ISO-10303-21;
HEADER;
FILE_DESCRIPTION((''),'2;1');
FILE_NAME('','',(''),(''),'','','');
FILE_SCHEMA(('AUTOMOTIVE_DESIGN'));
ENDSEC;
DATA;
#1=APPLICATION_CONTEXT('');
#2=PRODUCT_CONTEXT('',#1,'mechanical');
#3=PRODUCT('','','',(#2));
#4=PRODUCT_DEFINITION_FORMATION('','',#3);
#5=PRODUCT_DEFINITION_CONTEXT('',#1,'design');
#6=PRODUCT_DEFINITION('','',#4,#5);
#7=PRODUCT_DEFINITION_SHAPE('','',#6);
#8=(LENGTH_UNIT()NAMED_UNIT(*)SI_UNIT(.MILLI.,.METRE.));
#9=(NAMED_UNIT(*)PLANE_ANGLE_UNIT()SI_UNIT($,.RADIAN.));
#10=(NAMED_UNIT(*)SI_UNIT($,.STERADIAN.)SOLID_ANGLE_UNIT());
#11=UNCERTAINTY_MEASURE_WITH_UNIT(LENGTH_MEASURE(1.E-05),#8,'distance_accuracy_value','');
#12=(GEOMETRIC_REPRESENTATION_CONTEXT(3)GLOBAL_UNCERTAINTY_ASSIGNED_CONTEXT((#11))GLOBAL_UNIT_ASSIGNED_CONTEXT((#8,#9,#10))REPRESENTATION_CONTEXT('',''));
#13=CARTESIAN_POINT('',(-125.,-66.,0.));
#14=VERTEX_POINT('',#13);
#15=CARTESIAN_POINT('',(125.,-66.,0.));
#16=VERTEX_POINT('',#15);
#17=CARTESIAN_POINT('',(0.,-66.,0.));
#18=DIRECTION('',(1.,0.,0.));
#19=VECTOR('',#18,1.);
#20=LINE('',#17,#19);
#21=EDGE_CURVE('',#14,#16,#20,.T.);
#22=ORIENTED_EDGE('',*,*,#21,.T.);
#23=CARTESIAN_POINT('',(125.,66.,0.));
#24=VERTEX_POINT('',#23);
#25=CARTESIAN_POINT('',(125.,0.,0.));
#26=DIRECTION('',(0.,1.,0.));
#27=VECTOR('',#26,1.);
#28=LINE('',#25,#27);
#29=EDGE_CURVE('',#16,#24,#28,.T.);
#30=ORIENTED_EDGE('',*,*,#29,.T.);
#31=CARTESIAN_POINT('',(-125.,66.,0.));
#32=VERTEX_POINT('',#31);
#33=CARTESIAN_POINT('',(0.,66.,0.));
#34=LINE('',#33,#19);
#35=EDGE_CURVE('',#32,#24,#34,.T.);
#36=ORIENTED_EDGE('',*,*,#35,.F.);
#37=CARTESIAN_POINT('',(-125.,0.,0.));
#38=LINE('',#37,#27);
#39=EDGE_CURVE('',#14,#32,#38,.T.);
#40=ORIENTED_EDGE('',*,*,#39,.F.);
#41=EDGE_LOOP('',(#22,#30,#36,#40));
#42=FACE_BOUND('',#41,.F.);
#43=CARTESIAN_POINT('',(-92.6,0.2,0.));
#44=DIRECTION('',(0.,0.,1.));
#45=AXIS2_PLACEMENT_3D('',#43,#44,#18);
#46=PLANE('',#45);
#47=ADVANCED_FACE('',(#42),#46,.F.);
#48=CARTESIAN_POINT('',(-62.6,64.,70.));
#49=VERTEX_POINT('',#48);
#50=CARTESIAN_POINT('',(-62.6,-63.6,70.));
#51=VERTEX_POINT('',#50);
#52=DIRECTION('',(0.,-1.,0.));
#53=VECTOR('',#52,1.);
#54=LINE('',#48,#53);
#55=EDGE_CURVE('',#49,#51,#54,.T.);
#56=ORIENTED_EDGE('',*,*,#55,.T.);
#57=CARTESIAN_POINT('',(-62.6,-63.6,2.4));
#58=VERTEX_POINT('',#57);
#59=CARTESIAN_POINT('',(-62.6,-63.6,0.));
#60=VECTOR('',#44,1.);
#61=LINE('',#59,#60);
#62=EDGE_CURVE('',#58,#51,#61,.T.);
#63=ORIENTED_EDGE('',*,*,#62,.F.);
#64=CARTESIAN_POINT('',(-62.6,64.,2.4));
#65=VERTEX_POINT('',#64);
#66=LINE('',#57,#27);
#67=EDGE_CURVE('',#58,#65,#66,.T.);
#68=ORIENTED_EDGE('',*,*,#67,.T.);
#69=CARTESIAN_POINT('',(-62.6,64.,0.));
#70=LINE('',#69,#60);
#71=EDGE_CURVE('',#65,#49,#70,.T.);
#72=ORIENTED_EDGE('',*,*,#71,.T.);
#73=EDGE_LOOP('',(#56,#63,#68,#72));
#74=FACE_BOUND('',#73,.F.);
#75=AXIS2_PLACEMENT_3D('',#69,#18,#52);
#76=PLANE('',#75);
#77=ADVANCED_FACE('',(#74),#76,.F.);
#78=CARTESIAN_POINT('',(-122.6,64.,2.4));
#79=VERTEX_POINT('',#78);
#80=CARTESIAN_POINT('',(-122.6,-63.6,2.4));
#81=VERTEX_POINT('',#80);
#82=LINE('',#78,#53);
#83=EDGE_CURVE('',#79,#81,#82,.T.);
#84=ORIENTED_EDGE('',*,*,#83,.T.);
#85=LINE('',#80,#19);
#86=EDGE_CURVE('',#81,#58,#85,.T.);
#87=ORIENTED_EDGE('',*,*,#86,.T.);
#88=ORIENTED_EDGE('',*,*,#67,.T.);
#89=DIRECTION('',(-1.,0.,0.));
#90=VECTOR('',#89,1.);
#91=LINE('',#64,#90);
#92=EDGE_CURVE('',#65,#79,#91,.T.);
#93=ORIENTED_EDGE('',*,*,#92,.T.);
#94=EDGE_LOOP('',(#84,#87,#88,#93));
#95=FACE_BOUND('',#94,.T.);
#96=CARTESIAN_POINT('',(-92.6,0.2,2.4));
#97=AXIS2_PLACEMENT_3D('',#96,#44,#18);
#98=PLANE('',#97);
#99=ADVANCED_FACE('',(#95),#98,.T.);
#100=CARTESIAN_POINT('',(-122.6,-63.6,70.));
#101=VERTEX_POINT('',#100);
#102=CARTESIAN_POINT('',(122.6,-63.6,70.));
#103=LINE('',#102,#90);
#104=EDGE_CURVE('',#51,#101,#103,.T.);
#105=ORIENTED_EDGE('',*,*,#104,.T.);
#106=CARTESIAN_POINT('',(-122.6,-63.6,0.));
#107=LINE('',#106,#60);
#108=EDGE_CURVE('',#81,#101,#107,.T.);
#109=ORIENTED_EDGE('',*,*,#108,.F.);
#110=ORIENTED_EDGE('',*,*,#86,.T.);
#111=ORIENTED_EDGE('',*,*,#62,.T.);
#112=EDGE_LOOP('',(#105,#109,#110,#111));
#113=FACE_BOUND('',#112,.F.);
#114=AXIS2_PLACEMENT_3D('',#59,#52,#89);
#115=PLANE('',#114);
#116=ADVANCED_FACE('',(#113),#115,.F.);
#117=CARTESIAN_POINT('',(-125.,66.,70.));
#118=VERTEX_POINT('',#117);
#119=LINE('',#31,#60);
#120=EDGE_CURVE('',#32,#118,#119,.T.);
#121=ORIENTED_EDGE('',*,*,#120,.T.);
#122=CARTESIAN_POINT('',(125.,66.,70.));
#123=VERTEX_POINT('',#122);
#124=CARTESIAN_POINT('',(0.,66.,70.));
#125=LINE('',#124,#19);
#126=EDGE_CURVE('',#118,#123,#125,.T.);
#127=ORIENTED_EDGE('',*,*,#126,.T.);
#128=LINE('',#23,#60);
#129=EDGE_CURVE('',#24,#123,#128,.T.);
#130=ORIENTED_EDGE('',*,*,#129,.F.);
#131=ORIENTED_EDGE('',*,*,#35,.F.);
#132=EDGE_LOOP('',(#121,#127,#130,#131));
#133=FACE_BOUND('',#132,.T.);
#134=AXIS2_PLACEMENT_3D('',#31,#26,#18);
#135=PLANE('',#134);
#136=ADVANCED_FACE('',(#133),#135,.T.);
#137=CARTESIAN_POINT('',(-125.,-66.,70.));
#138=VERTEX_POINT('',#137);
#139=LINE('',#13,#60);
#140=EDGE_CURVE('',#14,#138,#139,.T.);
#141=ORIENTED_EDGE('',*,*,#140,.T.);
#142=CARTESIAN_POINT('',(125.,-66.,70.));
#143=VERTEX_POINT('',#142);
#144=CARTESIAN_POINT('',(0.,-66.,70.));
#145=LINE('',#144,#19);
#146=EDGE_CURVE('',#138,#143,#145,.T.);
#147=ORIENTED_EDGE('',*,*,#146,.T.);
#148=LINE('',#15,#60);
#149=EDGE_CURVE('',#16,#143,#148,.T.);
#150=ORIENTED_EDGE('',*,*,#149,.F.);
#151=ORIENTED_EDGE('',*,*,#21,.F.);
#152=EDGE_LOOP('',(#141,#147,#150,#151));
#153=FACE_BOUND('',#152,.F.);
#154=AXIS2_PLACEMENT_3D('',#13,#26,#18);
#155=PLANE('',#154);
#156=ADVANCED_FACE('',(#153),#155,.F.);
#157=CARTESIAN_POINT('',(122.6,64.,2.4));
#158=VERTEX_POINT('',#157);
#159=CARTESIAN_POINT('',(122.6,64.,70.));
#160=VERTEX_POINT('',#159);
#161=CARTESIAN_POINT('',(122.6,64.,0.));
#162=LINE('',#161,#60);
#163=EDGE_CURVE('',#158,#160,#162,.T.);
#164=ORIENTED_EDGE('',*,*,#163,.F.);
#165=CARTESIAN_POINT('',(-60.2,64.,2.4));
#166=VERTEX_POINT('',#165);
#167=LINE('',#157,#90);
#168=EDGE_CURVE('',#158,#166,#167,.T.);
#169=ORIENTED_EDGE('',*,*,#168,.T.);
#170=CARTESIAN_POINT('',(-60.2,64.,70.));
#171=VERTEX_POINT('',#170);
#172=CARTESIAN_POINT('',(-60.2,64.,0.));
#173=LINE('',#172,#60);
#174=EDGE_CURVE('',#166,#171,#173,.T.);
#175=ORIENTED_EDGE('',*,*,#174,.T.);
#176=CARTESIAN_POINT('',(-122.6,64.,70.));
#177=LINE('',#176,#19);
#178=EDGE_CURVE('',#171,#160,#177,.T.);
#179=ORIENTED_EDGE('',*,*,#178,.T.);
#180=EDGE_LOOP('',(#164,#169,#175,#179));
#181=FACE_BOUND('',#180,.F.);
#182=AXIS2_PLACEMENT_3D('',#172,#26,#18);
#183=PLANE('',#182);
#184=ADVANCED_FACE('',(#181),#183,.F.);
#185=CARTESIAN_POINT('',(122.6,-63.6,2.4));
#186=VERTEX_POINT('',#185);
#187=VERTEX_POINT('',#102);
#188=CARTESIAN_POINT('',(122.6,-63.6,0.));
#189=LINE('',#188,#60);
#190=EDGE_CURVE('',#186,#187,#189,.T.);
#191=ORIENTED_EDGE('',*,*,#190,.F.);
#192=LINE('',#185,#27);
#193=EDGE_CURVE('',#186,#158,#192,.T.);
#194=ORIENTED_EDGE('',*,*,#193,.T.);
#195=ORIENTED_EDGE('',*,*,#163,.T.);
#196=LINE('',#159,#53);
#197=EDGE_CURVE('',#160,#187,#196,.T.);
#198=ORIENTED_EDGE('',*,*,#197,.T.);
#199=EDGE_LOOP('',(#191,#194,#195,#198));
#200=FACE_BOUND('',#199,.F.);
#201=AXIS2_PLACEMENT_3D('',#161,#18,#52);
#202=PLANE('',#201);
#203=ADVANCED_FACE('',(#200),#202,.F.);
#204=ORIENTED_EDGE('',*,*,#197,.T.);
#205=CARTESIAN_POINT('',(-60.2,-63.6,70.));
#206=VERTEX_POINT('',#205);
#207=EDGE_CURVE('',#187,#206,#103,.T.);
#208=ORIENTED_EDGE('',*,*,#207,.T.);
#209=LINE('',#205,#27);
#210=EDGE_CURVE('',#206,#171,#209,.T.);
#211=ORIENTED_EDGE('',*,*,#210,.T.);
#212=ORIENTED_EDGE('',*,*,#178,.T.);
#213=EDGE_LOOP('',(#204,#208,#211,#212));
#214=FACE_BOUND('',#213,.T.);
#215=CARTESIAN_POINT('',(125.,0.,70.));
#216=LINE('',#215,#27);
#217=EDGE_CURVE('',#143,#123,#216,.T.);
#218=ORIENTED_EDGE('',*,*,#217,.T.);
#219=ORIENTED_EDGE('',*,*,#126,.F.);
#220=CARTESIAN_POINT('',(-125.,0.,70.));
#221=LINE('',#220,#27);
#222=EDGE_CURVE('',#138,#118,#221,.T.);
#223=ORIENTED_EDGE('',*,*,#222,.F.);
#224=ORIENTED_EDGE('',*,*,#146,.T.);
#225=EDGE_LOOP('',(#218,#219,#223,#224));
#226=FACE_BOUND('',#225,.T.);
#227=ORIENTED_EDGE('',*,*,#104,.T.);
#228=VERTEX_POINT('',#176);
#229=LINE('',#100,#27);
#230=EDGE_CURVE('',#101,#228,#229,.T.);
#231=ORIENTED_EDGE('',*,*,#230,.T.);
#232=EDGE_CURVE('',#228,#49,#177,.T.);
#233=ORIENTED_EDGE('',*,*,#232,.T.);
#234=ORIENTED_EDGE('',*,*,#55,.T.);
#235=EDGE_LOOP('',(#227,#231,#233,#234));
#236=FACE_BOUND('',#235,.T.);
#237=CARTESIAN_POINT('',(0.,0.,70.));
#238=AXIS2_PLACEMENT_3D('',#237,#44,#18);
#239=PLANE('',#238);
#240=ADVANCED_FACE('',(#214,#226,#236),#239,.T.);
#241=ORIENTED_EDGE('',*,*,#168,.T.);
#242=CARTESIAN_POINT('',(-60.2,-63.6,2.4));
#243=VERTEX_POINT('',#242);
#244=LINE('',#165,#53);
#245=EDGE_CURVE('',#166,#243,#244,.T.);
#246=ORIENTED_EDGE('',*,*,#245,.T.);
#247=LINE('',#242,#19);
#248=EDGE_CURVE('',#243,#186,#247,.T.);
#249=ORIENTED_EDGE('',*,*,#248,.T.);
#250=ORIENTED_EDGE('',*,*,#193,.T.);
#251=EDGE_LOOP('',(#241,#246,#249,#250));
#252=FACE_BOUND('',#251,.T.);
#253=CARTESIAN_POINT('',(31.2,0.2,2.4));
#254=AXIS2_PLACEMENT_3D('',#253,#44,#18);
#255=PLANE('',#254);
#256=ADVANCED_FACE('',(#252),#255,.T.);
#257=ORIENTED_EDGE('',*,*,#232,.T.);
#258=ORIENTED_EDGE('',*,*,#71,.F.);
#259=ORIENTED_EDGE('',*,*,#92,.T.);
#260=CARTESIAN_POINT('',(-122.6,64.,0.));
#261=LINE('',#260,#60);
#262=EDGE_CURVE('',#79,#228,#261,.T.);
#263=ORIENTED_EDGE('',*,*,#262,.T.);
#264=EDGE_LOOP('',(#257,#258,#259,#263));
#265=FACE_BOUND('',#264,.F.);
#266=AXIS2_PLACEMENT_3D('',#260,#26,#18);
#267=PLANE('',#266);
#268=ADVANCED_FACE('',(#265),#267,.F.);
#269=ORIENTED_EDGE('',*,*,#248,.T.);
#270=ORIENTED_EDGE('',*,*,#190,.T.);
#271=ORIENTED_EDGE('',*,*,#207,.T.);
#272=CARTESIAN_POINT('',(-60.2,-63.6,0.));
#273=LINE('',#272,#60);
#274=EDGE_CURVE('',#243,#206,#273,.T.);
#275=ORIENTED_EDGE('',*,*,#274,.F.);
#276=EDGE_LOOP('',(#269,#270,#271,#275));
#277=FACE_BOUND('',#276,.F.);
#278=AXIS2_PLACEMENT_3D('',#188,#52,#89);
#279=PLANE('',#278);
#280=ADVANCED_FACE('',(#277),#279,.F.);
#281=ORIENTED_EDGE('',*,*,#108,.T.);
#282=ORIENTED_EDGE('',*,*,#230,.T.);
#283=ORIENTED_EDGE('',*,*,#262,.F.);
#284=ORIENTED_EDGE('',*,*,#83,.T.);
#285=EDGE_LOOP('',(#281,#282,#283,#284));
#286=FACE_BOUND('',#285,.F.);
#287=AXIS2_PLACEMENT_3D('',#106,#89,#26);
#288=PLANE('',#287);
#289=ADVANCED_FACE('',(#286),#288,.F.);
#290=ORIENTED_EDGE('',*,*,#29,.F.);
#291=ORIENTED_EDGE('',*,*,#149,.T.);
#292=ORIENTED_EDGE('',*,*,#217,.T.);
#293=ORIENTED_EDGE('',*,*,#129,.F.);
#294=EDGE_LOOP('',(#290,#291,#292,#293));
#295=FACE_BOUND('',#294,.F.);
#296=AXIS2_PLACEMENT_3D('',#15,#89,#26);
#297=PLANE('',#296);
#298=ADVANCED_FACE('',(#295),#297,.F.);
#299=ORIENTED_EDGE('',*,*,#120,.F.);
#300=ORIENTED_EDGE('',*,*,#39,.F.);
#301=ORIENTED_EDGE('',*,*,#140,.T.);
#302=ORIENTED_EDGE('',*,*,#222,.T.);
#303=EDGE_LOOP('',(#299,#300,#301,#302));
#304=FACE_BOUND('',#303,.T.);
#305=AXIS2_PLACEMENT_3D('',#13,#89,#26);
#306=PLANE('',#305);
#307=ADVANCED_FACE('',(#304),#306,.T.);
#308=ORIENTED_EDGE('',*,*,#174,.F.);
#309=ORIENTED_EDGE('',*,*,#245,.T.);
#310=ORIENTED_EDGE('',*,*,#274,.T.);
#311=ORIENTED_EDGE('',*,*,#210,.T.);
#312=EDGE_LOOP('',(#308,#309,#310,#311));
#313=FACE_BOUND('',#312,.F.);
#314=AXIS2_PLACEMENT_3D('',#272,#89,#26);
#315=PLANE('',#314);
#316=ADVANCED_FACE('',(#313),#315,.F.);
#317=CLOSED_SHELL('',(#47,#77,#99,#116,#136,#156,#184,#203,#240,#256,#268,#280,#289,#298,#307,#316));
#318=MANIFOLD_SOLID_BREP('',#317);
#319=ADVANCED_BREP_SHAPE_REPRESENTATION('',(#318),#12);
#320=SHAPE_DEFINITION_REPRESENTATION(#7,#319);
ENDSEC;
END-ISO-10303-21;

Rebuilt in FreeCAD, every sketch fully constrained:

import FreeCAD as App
import Part
import Sketcher

V = App.Vector
Q = App.Units.Quantity


def add_polygon(sketch, points):
    """Adds a closed chain of lines whose ends are joined by coincident constraints."""
    first, n = sketch.GeometryCount, len(points)
    for a, b in zip(points, points[1:] + points[:1]):
        sketch.addGeometry(Part.LineSegment(App.Vector(*a, 0), App.Vector(*b, 0)), False)
    for i in range(n):
        sketch.addConstraint(Sketcher.Constraint("Coincident", first + i, 2, first + (i + 1) % n, 1))

doc = App.newDocument("Part")
body = doc.addObject("PartDesign::Body", "Body")

sketch1 = body.newObject("Sketcher::SketchObject", "Sketch")
sketch1.AttachmentSupport = (doc.getObject("XY_Plane"), [""])
sketch1.MapMode = "FlatFace"
add_polygon(sketch1, [(-125, 66), (-125, -66), (125, -66), (125, 66)])
add_polygon(sketch1, [(122.6, -63.6), (-60.2, -63.6), (-60.2, 64), (122.6, 64)])
add_polygon(sketch1, [(-62.6, -63.6), (-122.6, -63.6), (-122.6, 64), (-62.6, 64)])
sketch1.addConstraint(Sketcher.Constraint("Vertical", 0))
sketch1.addConstraint(Sketcher.Constraint("Horizontal", 1))
sketch1.addConstraint(Sketcher.Constraint("Vertical", 2))
sketch1.addConstraint(Sketcher.Constraint("Horizontal", 3))
sketch1.addConstraint(Sketcher.Constraint("Horizontal", 4))
sketch1.addConstraint(Sketcher.Constraint("Vertical", 5))
sketch1.addConstraint(Sketcher.Constraint("Horizontal", 6))
sketch1.addConstraint(Sketcher.Constraint("Vertical", 7))
sketch1.addConstraint(Sketcher.Constraint("Horizontal", 8))
sketch1.addConstraint(Sketcher.Constraint("Vertical", 9))
sketch1.addConstraint(Sketcher.Constraint("Horizontal", 10))
sketch1.addConstraint(Sketcher.Constraint("Vertical", 11))
sketch1.addConstraint(Sketcher.Constraint("Symmetric", 0, 2, 2, 2, -1, 1))
sketch1.addConstraint(Sketcher.Constraint("Symmetric", 7, 2, 8, 2, -2))
sketch1.addConstraint(Sketcher.Constraint("Horizontal", 6, 2, 9, 2))
sketch1.addConstraint(Sketcher.Constraint("DistanceX", 1, 1, 1, 2, Q("250 mm")))
sketch1.addConstraint(Sketcher.Constraint("DistanceX", 8, 2, 8, 1, Q("60 mm")))
sketch1.addConstraint(Sketcher.Constraint("DistanceY", 0, 2, 0, 1, Q("132 mm")))
sketch1.addConstraint(Sketcher.Constraint("DistanceX", 4, 2, 4, 1, Q("182.8 mm")))
sketch1.addConstraint(Sketcher.Constraint("DistanceY", 5, 1, 5, 2, Q("127.6 mm")))
sketch1.addConstraint(Sketcher.Constraint("DistanceY", -1, 1, 5, 2, Q("64 mm")))
sketch1.addConstraint(Sketcher.Constraint("DistanceX", 4, 2, -1, 1, Q("60.2 mm")))
pad1 = body.newObject("PartDesign::Pad", "Pad")
pad1.Profile = sketch1
pad1.Length = 70

sketch2 = body.newObject("Sketcher::SketchObject", "Sketch001")
sketch2.AttachmentSupport = (doc.getObject("XY_Plane"), [""])
sketch2.MapMode = "FlatFace"
add_polygon(sketch2, [(-122.6, 64), (-122.6, -63.6), (-62.6, -63.6), (-62.6, 64)])
add_polygon(sketch2, [(-60.2, -63.6), (122.6, -63.6), (122.6, 64), (-60.2, 64)])
sketch2.addConstraint(Sketcher.Constraint("Vertical", 0))
sketch2.addConstraint(Sketcher.Constraint("Horizontal", 1))
sketch2.addConstraint(Sketcher.Constraint("Vertical", 2))
sketch2.addConstraint(Sketcher.Constraint("Horizontal", 3))
sketch2.addConstraint(Sketcher.Constraint("Horizontal", 4))
sketch2.addConstraint(Sketcher.Constraint("Vertical", 5))
sketch2.addConstraint(Sketcher.Constraint("Horizontal", 6))
sketch2.addConstraint(Sketcher.Constraint("Vertical", 7))
sketch2.addConstraint(Sketcher.Constraint("Symmetric", 0, 2, 4, 2, -2))
sketch2.addConstraint(Sketcher.Constraint("Horizontal", 3, 2, 5, 2))
sketch2.addConstraint(Sketcher.Constraint("DistanceX", 1, 1, 1, 2, Q("60 mm")))
sketch2.addConstraint(Sketcher.Constraint("DistanceX", 4, 1, 4, 2, Q("182.8 mm")))
sketch2.addConstraint(Sketcher.Constraint("DistanceY", 0, 2, 0, 1, Q("127.6 mm")))
sketch2.addConstraint(Sketcher.Constraint("DistanceY", -1, 1, 2, 2, Q("64 mm")))
sketch2.addConstraint(Sketcher.Constraint("DistanceX", 0, 2, -1, 1, Q("122.6 mm")))
pad2 = body.newObject("PartDesign::Pad", "Pad001")
pad2.Profile = sketch2
pad2.Length = 2.4

doc.recompute()
